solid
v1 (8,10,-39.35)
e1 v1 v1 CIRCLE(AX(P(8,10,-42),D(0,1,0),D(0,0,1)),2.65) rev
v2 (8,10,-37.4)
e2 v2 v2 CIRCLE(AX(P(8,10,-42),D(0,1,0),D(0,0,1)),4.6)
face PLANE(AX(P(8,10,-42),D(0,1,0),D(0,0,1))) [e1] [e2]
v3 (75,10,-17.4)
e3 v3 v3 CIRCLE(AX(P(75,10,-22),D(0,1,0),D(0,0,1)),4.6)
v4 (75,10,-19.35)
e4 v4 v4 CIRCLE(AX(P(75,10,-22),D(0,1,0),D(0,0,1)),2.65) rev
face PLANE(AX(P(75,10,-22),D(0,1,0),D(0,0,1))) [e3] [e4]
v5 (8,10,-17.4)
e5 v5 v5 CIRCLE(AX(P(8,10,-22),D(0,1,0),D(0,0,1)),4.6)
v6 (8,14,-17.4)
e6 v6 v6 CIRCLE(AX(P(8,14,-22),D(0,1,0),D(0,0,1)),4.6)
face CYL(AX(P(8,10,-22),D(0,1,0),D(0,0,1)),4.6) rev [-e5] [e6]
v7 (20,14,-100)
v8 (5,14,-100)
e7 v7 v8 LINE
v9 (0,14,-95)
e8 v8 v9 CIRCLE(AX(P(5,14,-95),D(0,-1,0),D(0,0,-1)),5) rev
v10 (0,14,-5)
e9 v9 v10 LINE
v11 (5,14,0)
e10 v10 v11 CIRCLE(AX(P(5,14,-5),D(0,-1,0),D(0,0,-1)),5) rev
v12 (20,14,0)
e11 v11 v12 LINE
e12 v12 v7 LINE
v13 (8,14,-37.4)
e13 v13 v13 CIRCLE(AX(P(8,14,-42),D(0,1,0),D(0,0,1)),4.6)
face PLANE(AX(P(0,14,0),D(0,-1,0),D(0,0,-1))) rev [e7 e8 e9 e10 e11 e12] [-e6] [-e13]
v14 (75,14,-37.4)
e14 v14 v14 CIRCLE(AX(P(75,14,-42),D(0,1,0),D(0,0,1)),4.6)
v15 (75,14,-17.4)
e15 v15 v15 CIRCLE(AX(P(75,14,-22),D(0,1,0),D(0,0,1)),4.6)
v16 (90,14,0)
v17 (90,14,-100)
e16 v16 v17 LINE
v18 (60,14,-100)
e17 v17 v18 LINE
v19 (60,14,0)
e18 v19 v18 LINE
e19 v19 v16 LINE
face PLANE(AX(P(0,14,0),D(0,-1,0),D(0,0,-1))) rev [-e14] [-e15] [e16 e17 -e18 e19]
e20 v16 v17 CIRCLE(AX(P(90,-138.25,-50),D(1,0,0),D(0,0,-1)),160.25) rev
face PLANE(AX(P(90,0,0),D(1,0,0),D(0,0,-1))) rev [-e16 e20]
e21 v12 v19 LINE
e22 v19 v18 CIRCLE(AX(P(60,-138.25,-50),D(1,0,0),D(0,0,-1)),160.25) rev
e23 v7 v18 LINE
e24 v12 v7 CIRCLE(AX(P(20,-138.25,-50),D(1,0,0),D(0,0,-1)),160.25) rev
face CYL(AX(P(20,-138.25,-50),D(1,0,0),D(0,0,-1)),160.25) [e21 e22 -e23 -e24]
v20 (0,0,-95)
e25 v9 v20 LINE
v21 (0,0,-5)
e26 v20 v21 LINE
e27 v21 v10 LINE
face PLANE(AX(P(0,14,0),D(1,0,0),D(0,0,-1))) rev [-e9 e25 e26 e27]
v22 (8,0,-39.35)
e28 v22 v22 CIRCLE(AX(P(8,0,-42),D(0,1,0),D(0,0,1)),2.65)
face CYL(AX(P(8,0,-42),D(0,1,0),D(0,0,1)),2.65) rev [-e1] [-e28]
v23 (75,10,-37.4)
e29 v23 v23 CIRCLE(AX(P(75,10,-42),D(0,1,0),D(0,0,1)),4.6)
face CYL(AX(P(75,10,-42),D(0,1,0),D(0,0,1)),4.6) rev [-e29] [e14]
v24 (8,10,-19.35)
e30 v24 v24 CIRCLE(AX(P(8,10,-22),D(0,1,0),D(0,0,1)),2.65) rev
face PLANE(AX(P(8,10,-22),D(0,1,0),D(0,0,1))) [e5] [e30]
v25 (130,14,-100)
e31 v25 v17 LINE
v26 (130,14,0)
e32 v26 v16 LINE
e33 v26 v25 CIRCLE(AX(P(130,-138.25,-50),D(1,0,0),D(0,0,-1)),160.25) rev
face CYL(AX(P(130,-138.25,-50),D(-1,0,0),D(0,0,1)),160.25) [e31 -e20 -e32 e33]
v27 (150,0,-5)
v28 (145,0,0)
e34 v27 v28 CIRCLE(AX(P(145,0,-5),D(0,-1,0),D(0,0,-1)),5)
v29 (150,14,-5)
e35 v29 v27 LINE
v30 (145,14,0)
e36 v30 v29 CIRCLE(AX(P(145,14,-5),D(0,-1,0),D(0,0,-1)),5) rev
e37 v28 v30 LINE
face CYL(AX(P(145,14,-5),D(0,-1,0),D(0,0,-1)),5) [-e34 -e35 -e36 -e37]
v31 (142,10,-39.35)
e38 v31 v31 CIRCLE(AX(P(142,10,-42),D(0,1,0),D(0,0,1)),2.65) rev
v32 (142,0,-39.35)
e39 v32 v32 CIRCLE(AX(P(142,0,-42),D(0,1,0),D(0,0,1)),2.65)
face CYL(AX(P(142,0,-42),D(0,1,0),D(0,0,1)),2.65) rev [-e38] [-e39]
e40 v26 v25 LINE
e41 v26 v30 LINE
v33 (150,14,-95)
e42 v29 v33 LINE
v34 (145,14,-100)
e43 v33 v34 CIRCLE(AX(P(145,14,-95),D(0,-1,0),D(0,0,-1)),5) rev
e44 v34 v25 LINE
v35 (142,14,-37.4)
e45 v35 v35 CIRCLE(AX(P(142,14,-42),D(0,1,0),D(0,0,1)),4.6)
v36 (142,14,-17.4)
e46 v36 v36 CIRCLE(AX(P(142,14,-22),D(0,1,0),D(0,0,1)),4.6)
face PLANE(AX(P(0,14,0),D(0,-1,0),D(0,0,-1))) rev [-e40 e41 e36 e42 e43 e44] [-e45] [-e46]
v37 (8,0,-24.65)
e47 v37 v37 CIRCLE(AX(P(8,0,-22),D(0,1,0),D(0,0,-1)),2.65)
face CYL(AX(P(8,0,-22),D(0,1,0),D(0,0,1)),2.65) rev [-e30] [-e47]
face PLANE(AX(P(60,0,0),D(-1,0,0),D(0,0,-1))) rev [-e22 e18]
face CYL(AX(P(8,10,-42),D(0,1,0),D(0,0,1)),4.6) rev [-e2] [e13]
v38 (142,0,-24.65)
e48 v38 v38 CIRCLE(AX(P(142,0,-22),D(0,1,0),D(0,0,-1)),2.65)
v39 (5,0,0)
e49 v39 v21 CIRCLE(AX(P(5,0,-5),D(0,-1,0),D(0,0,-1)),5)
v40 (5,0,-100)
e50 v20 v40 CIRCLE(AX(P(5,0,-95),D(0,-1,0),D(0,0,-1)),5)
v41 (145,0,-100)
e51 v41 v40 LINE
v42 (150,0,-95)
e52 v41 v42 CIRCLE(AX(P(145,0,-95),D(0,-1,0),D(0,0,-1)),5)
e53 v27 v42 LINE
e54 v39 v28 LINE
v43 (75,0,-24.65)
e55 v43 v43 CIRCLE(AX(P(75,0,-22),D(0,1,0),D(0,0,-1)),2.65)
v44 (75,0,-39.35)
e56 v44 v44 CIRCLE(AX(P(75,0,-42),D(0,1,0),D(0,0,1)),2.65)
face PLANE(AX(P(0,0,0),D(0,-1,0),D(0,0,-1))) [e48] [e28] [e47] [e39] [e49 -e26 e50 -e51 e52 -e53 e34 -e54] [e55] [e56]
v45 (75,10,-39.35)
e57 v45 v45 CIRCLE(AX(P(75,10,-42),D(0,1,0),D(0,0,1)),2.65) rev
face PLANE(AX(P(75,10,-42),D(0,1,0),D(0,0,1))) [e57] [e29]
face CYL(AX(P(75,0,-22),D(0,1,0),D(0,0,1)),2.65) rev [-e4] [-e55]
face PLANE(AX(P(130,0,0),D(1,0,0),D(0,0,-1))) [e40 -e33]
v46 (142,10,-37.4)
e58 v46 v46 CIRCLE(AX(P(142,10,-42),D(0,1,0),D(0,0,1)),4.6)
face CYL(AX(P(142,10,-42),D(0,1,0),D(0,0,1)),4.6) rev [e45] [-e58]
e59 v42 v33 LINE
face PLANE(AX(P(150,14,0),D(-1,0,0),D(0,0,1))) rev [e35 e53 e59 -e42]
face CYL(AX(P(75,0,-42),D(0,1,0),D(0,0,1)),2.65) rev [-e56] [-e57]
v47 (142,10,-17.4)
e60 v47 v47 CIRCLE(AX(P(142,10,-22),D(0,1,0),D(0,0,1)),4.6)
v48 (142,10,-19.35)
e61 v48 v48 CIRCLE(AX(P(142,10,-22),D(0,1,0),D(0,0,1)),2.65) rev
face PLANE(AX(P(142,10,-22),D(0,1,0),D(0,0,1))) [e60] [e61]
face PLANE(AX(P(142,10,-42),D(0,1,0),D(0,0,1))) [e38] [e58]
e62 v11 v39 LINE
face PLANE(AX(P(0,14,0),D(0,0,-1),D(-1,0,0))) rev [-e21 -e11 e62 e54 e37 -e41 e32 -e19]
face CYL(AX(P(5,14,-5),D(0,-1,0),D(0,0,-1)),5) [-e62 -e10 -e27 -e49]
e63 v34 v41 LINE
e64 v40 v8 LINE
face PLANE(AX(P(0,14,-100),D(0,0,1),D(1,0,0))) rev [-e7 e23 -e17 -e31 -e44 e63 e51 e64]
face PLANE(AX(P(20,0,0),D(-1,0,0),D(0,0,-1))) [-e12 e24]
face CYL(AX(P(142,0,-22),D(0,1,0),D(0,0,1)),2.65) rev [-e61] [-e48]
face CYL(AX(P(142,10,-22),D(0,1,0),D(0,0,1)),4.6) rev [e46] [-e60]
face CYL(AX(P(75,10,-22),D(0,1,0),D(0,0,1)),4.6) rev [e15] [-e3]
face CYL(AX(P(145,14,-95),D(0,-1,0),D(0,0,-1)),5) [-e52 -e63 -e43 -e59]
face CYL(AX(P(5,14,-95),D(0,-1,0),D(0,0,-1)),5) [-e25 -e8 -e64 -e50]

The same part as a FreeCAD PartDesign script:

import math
import FreeCAD as App
import Part
import Sketcher


def edges_at(feature, points):
    """Names of the edges that pass closest to the given points."""
    edges = feature.Shape.Edges
    near = lambda p: min(range(len(edges)), key=lambda i: edges[i].distToShape(Part.Vertex(*p))[0])
    return sorted({f"Edge{near(p) + 1}" for p in points})


def add_polygon(sketch, points):
    """Adds a closed chain of lines whose ends are joined by coincident constraints."""
    first, n = sketch.GeometryCount, len(points)
    for a, b in zip(points, points[1:] + points[:1]):
        sketch.addGeometry(Part.LineSegment(App.Vector(*a, 0), App.Vector(*b, 0)), False)
    for i in range(n):
        sketch.addConstraint(Sketcher.Constraint("Coincident", first + i, 2, first + (i + 1) % n, 1))

doc = App.newDocument("Part")
body = doc.addObject("PartDesign::Body", "Body")

# Sketch on XZ plane
sketch1 = body.newObject("Sketcher::SketchObject", "Sketch")
sketch1.AttachmentSupport = (doc.getObject("XZ_Plane"), [""])
sketch1.MapMode = "FlatFace"
add_polygon(sketch1, [(0, -100), (0, 0), (150, 0), (150, -100)])  # lines 0-3
sketch1.addConstraint(Sketcher.Constraint("Vertical", 0))
sketch1.addConstraint(Sketcher.Constraint("Horizontal", 1))
sketch1.addConstraint(Sketcher.Constraint("Vertical", 2))
sketch1.addConstraint(Sketcher.Constraint("Horizontal", 3))
sketch1.addConstraint(Sketcher.Constraint("Coincident", 0, 2, -1, 1))
sketch1.addConstraint(Sketcher.Constraint("DistanceX", 1, 1, 1, 2, 150.0))
sketch1.addConstraint(Sketcher.Constraint("DistanceY", 0, 1, 0, 2, 100.0))
pad1 = body.newObject("PartDesign::Pad", "Pad")
pad1.Profile = sketch1
pad1.Length = 14
pad1.Reversed = True

# Sketch on XZ plane
sketch2 = body.newObject("Sketcher::SketchObject", "Sketch001")
sketch2.AttachmentSupport = (doc.getObject("XZ_Plane"), [""])
sketch2.MapMode = "FlatFace"
sketch2.AttachmentOffset = App.Placement(App.Vector(0, 0, -14), App.Rotation())
sketch2.addGeometry(Part.Circle(App.Vector(8, -42, 0), App.Vector(0, 0, 1), 2.6), False)
sketch2.addGeometry(Part.Circle(App.Vector(142, -42, 0), App.Vector(0, 0, 1), 2.6), False)
sketch2.addGeometry(Part.Circle(App.Vector(75, -42, 0), App.Vector(0, 0, 1), 2.6), False)
sketch2.addGeometry(Part.Circle(App.Vector(142, -22, 0), App.Vector(0, 0, 1), 2.6), False)
sketch2.addGeometry(Part.Circle(App.Vector(75, -22, 0), App.Vector(0, 0, 1), 2.6), False)
sketch2.addGeometry(Part.Circle(App.Vector(8, -22, 0), App.Vector(0, 0, 1), 2.6), False)
sketch2.addConstraint(Sketcher.Constraint("Equal", 0, 1))
sketch2.addConstraint(Sketcher.Constraint("Equal", 1, 2))
sketch2.addConstraint(Sketcher.Constraint("Equal", 2, 3))
sketch2.addConstraint(Sketcher.Constraint("Equal", 3, 4))
sketch2.addConstraint(Sketcher.Constraint("Equal", 4, 5))
sketch2.addConstraint(Sketcher.Constraint("Horizontal", 0, 3, 1, 3))
sketch2.addConstraint(Sketcher.Constraint("Horizontal", 1, 3, 2, 3))
sketch2.addConstraint(Sketcher.Constraint("Horizontal", 3, 3, 4, 3))
sketch2.addConstraint(Sketcher.Constraint("Horizontal", 4, 3, 5, 3))
sketch2.addConstraint(Sketcher.Constraint("Vertical", 1, 3, 3, 3))
sketch2.addConstraint(Sketcher.Constraint("Vertical", 2, 3, 4, 3))
sketch2.addConstraint(Sketcher.Constraint("Vertical", 0, 3, 5, 3))
sketch2.addConstraint(Sketcher.Constraint("Diameter", 0, 5.3))
sketch2.addConstraint(Sketcher.Constraint("DistanceX", -1, 1, 0, 3, 8.0))
sketch2.addConstraint(Sketcher.Constraint("DistanceY", 0, 3, -1, 1, 42.0))
sketch2.addConstraint(Sketcher.Constraint("DistanceX", -1, 1, 1, 3, 142.0))
sketch2.addConstraint(Sketcher.Constraint("DistanceX", -1, 1, 2, 3, 75.0))
sketch2.addConstraint(Sketcher.Constraint("DistanceY", 3, 3, -1, 1, 22.0))
pocket1 = body.newObject("PartDesign::Pocket", "Pocket")
pocket1.Profile = sketch2
pocket1.Type = "ThroughAll"
pocket1.Reversed = True

# Sketch on XZ plane
sketch3 = body.newObject("Sketcher::SketchObject", "Sketch002")
sketch3.AttachmentSupport = (doc.getObject("XZ_Plane"), [""])
sketch3.MapMode = "FlatFace"
sketch3.AttachmentOffset = App.Placement(App.Vector(0, 0, -14), App.Rotation())
sketch3.addGeometry(Part.Circle(App.Vector(8, -42, 0), App.Vector(0, 0, 1), 4.6), False)
sketch3.addGeometry(Part.Circle(App.Vector(75, -42, 0), App.Vector(0, 0, 1), 4.6), False)
sketch3.addGeometry(Part.Circle(App.Vector(142, -42, 0), App.Vector(0, 0, 1), 4.6), False)
sketch3.addGeometry(Part.Circle(App.Vector(8, -22, 0), App.Vector(0, 0, 1), 4.6), False)
sketch3.addGeometry(Part.Circle(App.Vector(75, -22, 0), App.Vector(0, 0, 1), 4.6), False)
sketch3.addGeometry(Part.Circle(App.Vector(142, -22, 0), App.Vector(0, 0, 1), 4.6), False)
sketch3.addConstraint(Sketcher.Constraint("Equal", 0, 1))
sketch3.addConstraint(Sketcher.Constraint("Equal", 1, 2))
sketch3.addConstraint(Sketcher.Constraint("Equal", 2, 3))
sketch3.addConstraint(Sketcher.Constraint("Equal", 3, 4))
sketch3.addConstraint(Sketcher.Constraint("Equal", 4, 5))
sketch3.addConstraint(Sketcher.Constraint("Horizontal", 0, 3, 1, 3))
sketch3.addConstraint(Sketcher.Constraint("Horizontal", 1, 3, 2, 3))
sketch3.addConstraint(Sketcher.Constraint("Horizontal", 3, 3, 4, 3))
sketch3.addConstraint(Sketcher.Constraint("Horizontal", 4, 3, 5, 3))
sketch3.addConstraint(Sketcher.Constraint("Vertical", 0, 3, 3, 3))
sketch3.addConstraint(Sketcher.Constraint("Vertical", 1, 3, 4, 3))
sketch3.addConstraint(Sketcher.Constraint("Vertical", 2, 3, 5, 3))
sketch3.addConstraint(Sketcher.Constraint("Diameter", 0, 9.2))
sketch3.addConstraint(Sketcher.Constraint("DistanceX", -1, 1, 0, 3, 8.0))
sketch3.addConstraint(Sketcher.Constraint("DistanceY", 0, 3, -1, 1, 42.0))
sketch3.addConstraint(Sketcher.Constraint("DistanceX", -1, 1, 1, 3, 75.0))
sketch3.addConstraint(Sketcher.Constraint("DistanceX", -1, 1, 2, 3, 142.0))
sketch3.addConstraint(Sketcher.Constraint("DistanceY", 3, 3, -1, 1, 22.0))
pocket2 = body.newObject("PartDesign::Pocket", "Pocket001")
pocket2.Profile = sketch3
pocket2.Length = 4
pocket2.Reversed = True

# Sketch on YZ plane
sketch4 = body.newObject("Sketcher::SketchObject", "Sketch003")
sketch4.AttachmentSupport = (doc.getObject("YZ_Plane"), [""])
sketch4.MapMode = "FlatFace"
sketch4.AttachmentOffset = App.Placement(App.Vector(0, 0, 90), App.Rotation())
sketch4.addGeometry(Part.LineSegment(App.Vector(14, 0, 0), App.Vector(14, -100, 0)), False)
sketch4.addGeometry(Part.ArcOfCircle(Part.Circle(App.Vector(-138, -50, 0), App.Vector(0, 0, 1), 160), math.radians(-18), math.radians(18)), False)
sketch4.addConstraint(Sketcher.Constraint("Coincident", 0, 1, 1, 2))
sketch4.addConstraint(Sketcher.Constraint("Coincident", 1, 1, 0, 2))
sketch4.addConstraint(Sketcher.Constraint("Vertical", 0))
sketch4.addConstraint(Sketcher.Constraint("PointOnObject", 0, 1, -1))
sketch4.addConstraint(Sketcher.Constraint("DistanceY", 0, 2, 0, 1, 100.0))
sketch4.addConstraint(Sketcher.Constraint("Radius", 1, 160.25))
sketch4.addConstraint(Sketcher.Constraint("DistanceX", -1, 1, 0, 1, 14.0))
pad2 = body.newObject("PartDesign::Pad", "Pad001")
pad2.Profile = sketch4
pad2.Length = 40
doc.recompute()

datumplane = body.newObject("PartDesign::Plane", "DatumPlane")
datumplane.AttachmentSupport = (doc.getObject("YZ_Plane"), [""])
datumplane.MapMode = "FlatFace"
datumplane.AttachmentOffset = App.Placement(App.Vector(0, 0, 75), App.Rotation())
mirrored = body.newObject("PartDesign::Mirrored", "Mirrored")
mirrored.Originals = [pad2]
mirrored.MirrorPlane = (datumplane, [""])
body.Tip = mirrored
doc.recompute()

fillet = body.newObject("PartDesign::Fillet", "Fillet")
fillet.Base = (mirrored, edges_at(mirrored, [
    (0, 7, -100),
    (150, 7, -100),
    (150, 7, 0),
    (0, 7, 0),
]))
fillet.Radius = 5

doc.recompute()
